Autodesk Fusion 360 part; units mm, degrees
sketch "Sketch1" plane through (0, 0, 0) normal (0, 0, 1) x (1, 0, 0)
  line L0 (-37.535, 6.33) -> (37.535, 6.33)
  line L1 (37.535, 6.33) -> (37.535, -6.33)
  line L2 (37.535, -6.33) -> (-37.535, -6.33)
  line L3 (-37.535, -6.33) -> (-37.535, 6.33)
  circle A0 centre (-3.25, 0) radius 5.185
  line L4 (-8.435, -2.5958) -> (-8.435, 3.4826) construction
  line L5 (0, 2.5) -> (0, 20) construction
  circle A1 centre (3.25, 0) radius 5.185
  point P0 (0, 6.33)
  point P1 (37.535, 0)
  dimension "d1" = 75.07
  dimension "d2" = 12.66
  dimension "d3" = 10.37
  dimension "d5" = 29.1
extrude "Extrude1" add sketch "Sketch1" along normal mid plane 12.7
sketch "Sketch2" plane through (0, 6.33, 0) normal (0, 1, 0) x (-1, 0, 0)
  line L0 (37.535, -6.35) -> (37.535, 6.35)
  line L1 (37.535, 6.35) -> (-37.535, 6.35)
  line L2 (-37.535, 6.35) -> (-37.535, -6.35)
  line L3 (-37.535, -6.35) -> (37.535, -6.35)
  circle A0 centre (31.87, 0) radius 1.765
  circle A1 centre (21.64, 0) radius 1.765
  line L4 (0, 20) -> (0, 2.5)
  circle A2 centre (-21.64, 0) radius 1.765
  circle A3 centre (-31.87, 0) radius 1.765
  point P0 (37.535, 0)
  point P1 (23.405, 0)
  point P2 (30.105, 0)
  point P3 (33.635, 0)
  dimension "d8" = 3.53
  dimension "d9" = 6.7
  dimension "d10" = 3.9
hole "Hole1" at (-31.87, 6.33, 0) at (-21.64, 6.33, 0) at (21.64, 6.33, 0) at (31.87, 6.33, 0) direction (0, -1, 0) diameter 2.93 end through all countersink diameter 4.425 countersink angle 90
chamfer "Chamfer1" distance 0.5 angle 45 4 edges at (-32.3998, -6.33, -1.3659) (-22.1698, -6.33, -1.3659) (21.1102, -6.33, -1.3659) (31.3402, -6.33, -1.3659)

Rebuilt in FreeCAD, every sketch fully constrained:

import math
import FreeCAD as App
import Part
import Sketcher

V = App.Vector
Q = App.Units.Quantity


def edges_at(feature, points):
    """Names of the edges that pass closest to the given points."""
    edges = feature.Shape.Edges
    near = lambda p: min(range(len(edges)), key=lambda i: edges[i].distToShape(Part.Vertex(*p))[0])
    return sorted({f"Edge{near(p) + 1}" for p in points})

doc = App.newDocument("Part")
body = doc.addObject("PartDesign::Body", "Body")

# Sketch on XY plane
sketch1 = body.newObject("Sketcher::SketchObject", "Sketch")
sketch1.AttachmentSupport = (doc.getObject("XY_Plane"), [""])
sketch1.MapMode = "FlatFace"
sketch1.addGeometry([
    Part.LineSegment(V(38, 6, 0), V(-38, 6, 0)),  # 0
    Part.LineSegment(V(-38, 6, 0), V(-38, -6, 0)),  # 1
    Part.LineSegment(V(-38, -6, 0), V(38, -6, 0)),  # 2
    Part.LineSegment(V(38, -6, 0), V(38, 6, 0)),  # 3
    Part.ArcOfCircle(Part.Circle(V(-3, 0, 0), V(0, 0, 1), 5), math.radians(51), math.radians(309)),  # 4
    Part.ArcOfCircle(Part.Circle(V(3, 0, 0), V(0, 0, 1), 5), math.radians(-129), math.radians(129)),  # 5
], False)
sketch1.addConstraint([
    Sketcher.Constraint("Coincident", 0, 2, 1, 1),
    Sketcher.Constraint("Coincident", 1, 2, 2, 1),
    Sketcher.Constraint("Coincident", 2, 2, 3, 1),
    Sketcher.Constraint("Coincident", 3, 2, 0, 1),
    Sketcher.Constraint("Coincident", 4, 1, 5, 2),
    Sketcher.Constraint("Coincident", 5, 1, 4, 2),
    Sketcher.Constraint("Horizontal", 0),
    Sketcher.Constraint("Vertical", 1),
    Sketcher.Constraint("Horizontal", 2),
    Sketcher.Constraint("Vertical", 3),
    Sketcher.Constraint("Equal", 4, 5),
    Sketcher.Constraint("Symmetric", 4, 3, 5, 3, -1, 1),
    Sketcher.Constraint("Symmetric", 0, 2, 2, 2, -1, 1),
    Sketcher.Constraint("PointOnObject", 4, 3, -1),
    Sketcher.Constraint("Radius", 4, Q("5.185 mm")),
    Sketcher.Constraint("DistanceX", 0, 2, 0, 1, Q("75.07 mm")),
    Sketcher.Constraint("DistanceY", 1, 2, 1, 1, Q("12.66 mm")),
    Sketcher.Constraint("DistanceY", 2, 2, 4, 1, Q("10.37 mm")),
])
pad1 = body.newObject("PartDesign::Pad", "Pad")
pad1.Profile = sketch1
pad1.Length = 12.7
pad1.Midplane = True

# Sketch on XZ plane
sketch2 = body.newObject("Sketcher::SketchObject", "Sketch001")
sketch2.AttachmentSupport = (doc.getObject("XZ_Plane"), [""])
sketch2.MapMode = "FlatFace"
sketch2.AttachmentOffset = App.Placement(V(0, 0, -6.33), App.Rotation())
sketch2.addGeometry([
    Part.Circle(V(-31.9, 0, 0), V(0, 0, 1), 1.5),
    Part.Circle(V(-21.6, 0, 0), V(0, 0, 1), 1.5),
    Part.Circle(V(21.6, 0, 0), V(0, 0, 1), 1.5),
    Part.Circle(V(31.9, 0, 0), V(0, 0, 1), 1.5),
], False)
sketch2.addConstraint([
    Sketcher.Constraint("Equal", 0, 1),
    Sketcher.Constraint("Equal", 1, 2),
    Sketcher.Constraint("Equal", 2, 3),
    Sketcher.Constraint("Symmetric", 1, 3, 2, 3, -1, 1),
    Sketcher.Constraint("Symmetric", 0, 3, 3, 3, -1, 1),
    Sketcher.Constraint("PointOnObject", 0, 3, -1),
    Sketcher.Constraint("PointOnObject", 1, 3, -1),
    Sketcher.Constraint("Diameter", 0, Q("2.93 mm")),
    Sketcher.Constraint("DistanceX", 0, 3, -1, 1, Q("31.87 mm")),
    Sketcher.Constraint("DistanceX", 1, 3, -1, 1, Q("21.64 mm")),
])
doc.recompute()
hole = body.newObject("PartDesign::Hole", "Hole")
hole.Profile = sketch2
hole.ThreadType = "None"
hole.Diameter = 2.93
hole.DepthType = "ThroughAll"
hole.HoleCutType = "Countersink"
hole.HoleCutDiameter = 4.425
hole.HoleCutCountersinkAngle = 90
hole.Reversed = True
doc.recompute()

chamfer = body.newObject("PartDesign::Chamfer", "Chamfer")
chamfer.Base = (hole, edges_at(hole, [
    (-32.4, -6.33, -1.366),
    (-22.17, -6.33, -1.366),
    (21.11, -6.33, -1.366),
    (31.34, -6.33, -1.366),
]))
chamfer.Size = 0.5

doc.recompute()
